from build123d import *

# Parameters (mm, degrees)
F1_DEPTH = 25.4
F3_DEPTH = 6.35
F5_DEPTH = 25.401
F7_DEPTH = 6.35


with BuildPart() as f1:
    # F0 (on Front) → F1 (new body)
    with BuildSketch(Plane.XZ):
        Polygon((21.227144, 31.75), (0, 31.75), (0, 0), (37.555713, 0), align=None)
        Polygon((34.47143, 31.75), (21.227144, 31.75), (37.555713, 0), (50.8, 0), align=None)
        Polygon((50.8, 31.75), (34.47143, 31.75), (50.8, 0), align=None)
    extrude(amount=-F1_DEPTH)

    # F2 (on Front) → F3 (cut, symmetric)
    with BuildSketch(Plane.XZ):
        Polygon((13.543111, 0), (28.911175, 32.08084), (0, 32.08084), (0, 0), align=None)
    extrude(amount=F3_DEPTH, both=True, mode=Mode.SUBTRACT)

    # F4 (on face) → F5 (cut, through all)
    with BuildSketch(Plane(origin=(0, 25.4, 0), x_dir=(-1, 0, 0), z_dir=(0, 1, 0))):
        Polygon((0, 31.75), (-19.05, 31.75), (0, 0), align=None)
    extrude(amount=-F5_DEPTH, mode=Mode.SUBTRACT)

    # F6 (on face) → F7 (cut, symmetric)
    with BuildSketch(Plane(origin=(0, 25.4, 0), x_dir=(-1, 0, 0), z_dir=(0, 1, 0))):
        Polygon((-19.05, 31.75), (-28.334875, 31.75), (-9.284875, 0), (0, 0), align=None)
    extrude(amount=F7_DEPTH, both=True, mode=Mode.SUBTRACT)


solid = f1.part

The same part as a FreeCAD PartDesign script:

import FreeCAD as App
import Part
import Sketcher
Q = App.Units.Quantity

doc = App.newDocument("Part")
params = doc.addObject("Spreadsheet::Sheet", "Params")
for row, (alias, value) in enumerate([
    ("sketch1_width", "2 in"),
    ("sketch1_height", "1.25 in"),
    ("pad1_length", "1 in"),
    ("pocket1_length", "0.5 in"),
    ("sketch3_width", "0.75 in"),
    ("sketch3_height", "1.25 in"),
    ("pocket3_length", "0.5 in"),
], start=1):
    params.set(f"A{row}", alias)
    params.set(f"B{row}", "=" + value)
    params.setAlias(f"B{row}", alias)

body = doc.addObject("PartDesign::Body", "Body")

# Sketch on XZ plane
sketch1 = body.newObject("Sketcher::SketchObject", "Sketch")
sketch1.AttachmentSupport = (doc.getObject("XZ_Plane"), [""])
sketch1.MapMode = "FlatFace"
sketch1.addGeometry([
    Part.LineSegment(App.Vector(0, 31.75, 0), App.Vector(0, 0, 0)),
    Part.LineSegment(App.Vector(0, 0, 0), App.Vector(50.8, 0, 0)),
    Part.LineSegment(App.Vector(50.8, 0, 0), App.Vector(50.8, 31.75, 0)),
    Part.LineSegment(App.Vector(50.8, 31.75, 0), App.Vector(0, 31.75, 0)),
], False)
sketch1.addConstraint([
    Sketcher.Constraint("Coincident", 0, 2, 1, 1),
    Sketcher.Constraint("Coincident", 1, 2, 2, 1),
    Sketcher.Constraint("Coincident", 2, 2, 3, 1),
    Sketcher.Constraint("Coincident", 3, 2, 0, 1),
    Sketcher.Constraint("Vertical", 0),
    Sketcher.Constraint("Horizontal", 1),
    Sketcher.Constraint("Vertical", 2),
    Sketcher.Constraint("Horizontal", 3),
    Sketcher.Constraint("Coincident", 0, 2, -1, 1),
    Sketcher.Constraint("DistanceX", 1, 1, 1, 2, Q("2 in")),
    Sketcher.Constraint("DistanceY", 0, 2, 0, 1, Q("1.25 in")),
])
sketch1.setExpression("Constraints[9]", "Params.sketch1_width")
sketch1.setExpression("Constraints[10]", "Params.sketch1_height")
pad1 = body.newObject("PartDesign::Pad", "Pad")
pad1.Profile = sketch1
pad1.setExpression("Length", "Params.pad1_length")
pad1.Reversed = True

# Sketch on XZ plane
sketch2 = body.newObject("Sketcher::SketchObject", "Sketch001")
sketch2.AttachmentSupport = (doc.getObject("XZ_Plane"), [""])
sketch2.MapMode = "FlatFace"
sketch2.addGeometry([
    Part.LineSegment(App.Vector(13.543111, 0, 0), App.Vector(28.911175, 32.08084, 0)),
    Part.LineSegment(App.Vector(28.911175, 32.08084, 0), App.Vector(0, 32.08084, 0)),
    Part.LineSegment(App.Vector(0, 32.08084, 0), App.Vector(0, 0, 0)),
    Part.LineSegment(App.Vector(0, 0, 0), App.Vector(13.543111, 0, 0)),
], False)
sketch2.addConstraint([
    Sketcher.Constraint("Coincident", 0, 2, 1, 1),
    Sketcher.Constraint("Coincident", 1, 2, 2, 1),
    Sketcher.Constraint("Coincident", 2, 2, 3, 1),
    Sketcher.Constraint("Coincident", 3, 2, 0, 1),
    Sketcher.Constraint("Horizontal", 1),
    Sketcher.Constraint("Vertical", 2),
    Sketcher.Constraint("Horizontal", 3),
    Sketcher.Constraint("Coincident", 2, 2, -1, 1),
    Sketcher.Constraint("DistanceX", 3, 1, 3, 2, 13.543111),
    Sketcher.Constraint("DistanceY", 2, 2, 2, 1, 32.08084),
    Sketcher.Constraint("DistanceX", 1, 2, 1, 1, 28.911175),
])
pocket1 = body.newObject("PartDesign::Pocket", "Pocket")
pocket1.Profile = sketch2
pocket1.setExpression("Length", "Params.pocket1_length")
pocket1.Midplane = True

# Sketch on XZ plane
sketch3 = body.newObject("Sketcher::SketchObject", "Sketch002")
sketch3.AttachmentSupport = (doc.getObject("XZ_Plane"), [""])
sketch3.MapMode = "FlatFace"
sketch3.AttachmentOffset = App.Placement(App.Vector(0, 0, -1 * 25.4), App.Rotation())
sketch3.addGeometry([
    Part.LineSegment(App.Vector(0, 31.75, 0), App.Vector(19.05, 31.75, 0)),
    Part.LineSegment(App.Vector(19.05, 31.75, 0), App.Vector(0, 0, 0)),
    Part.LineSegment(App.Vector(0, 0, 0), App.Vector(0, 31.75, 0)),
], False)
sketch3.addConstraint([
    Sketcher.Constraint("Coincident", 0, 2, 1, 1),
    Sketcher.Constraint("Coincident", 1, 2, 2, 1),
    Sketcher.Constraint("Coincident", 2, 2, 0, 1),
    Sketcher.Constraint("Horizontal", 0),
    Sketcher.Constraint("Vertical", 2),
    Sketcher.Constraint("Coincident", 1, 2, -1, 1),
    Sketcher.Constraint("DistanceX", 0, 1, 0, 2, Q("0.75 in")),
    Sketcher.Constraint("DistanceY", 2, 1, 2, 2, Q("1.25 in")),
])
sketch3.setExpression("Constraints[6]", "Params.sketch3_width")
sketch3.setExpression("Constraints[7]", "Params.sketch3_height")
pocket2 = body.newObject("PartDesign::Pocket", "Pocket001")
pocket2.Profile = sketch3
pocket2.Type = "ThroughAll"
pocket2.Reversed = True

# Sketch on XZ plane
sketch4 = body.newObject("Sketcher::SketchObject", "Sketch003")
sketch4.AttachmentSupport = (doc.getObject("XZ_Plane"), [""])
sketch4.MapMode = "FlatFace"
sketch4.AttachmentOffset = App.Placement(App.Vector(0, 0, -1 * 25.4), App.Rotation())
sketch4.addGeometry([
    Part.LineSegment(App.Vector(19.05, 31.75, 0), App.Vector(28.334875, 31.75, 0)),
    Part.LineSegment(App.Vector(28.334875, 31.75, 0), App.Vector(9.284875, 0, 0)),
    Part.LineSegment(App.Vector(9.284875, 0, 0), App.Vector(0, 0, 0)),
    Part.LineSegment(App.Vector(0, 0, 0), App.Vector(19.05, 31.75, 0)),
], False)
sketch4.addConstraint([
    Sketcher.Constraint("Coincident", 0, 2, 1, 1),
    Sketcher.Constraint("Coincident", 1, 2, 2, 1),
    Sketcher.Constraint("Coincident", 2, 2, 3, 1),
    Sketcher.Constraint("Coincident", 3, 2, 0, 1),
    Sketcher.Constraint("Horizontal", 0),
    Sketcher.Constraint("Horizontal", 2),
    Sketcher.Constraint("Coincident", 2, 2, -1, 1),
    Sketcher.Constraint("Parallel", 1, 3),
    Sketcher.Constraint("DistanceY", -1, 1, 0, 2, Q("1.25 in")),
    Sketcher.Constraint("DistanceX", -1, 1, 3, 2, Q("0.75 in")),
    Sketcher.Constraint("DistanceX", 0, 1, 0, 2, 9.284875),
])
pocket3 = body.newObject("PartDesign::Pocket", "Pocket002")
pocket3.Profile = sketch4
pocket3.setExpression("Length", "Params.pocket3_length")
pocket3.Midplane = True

doc.recompute()
